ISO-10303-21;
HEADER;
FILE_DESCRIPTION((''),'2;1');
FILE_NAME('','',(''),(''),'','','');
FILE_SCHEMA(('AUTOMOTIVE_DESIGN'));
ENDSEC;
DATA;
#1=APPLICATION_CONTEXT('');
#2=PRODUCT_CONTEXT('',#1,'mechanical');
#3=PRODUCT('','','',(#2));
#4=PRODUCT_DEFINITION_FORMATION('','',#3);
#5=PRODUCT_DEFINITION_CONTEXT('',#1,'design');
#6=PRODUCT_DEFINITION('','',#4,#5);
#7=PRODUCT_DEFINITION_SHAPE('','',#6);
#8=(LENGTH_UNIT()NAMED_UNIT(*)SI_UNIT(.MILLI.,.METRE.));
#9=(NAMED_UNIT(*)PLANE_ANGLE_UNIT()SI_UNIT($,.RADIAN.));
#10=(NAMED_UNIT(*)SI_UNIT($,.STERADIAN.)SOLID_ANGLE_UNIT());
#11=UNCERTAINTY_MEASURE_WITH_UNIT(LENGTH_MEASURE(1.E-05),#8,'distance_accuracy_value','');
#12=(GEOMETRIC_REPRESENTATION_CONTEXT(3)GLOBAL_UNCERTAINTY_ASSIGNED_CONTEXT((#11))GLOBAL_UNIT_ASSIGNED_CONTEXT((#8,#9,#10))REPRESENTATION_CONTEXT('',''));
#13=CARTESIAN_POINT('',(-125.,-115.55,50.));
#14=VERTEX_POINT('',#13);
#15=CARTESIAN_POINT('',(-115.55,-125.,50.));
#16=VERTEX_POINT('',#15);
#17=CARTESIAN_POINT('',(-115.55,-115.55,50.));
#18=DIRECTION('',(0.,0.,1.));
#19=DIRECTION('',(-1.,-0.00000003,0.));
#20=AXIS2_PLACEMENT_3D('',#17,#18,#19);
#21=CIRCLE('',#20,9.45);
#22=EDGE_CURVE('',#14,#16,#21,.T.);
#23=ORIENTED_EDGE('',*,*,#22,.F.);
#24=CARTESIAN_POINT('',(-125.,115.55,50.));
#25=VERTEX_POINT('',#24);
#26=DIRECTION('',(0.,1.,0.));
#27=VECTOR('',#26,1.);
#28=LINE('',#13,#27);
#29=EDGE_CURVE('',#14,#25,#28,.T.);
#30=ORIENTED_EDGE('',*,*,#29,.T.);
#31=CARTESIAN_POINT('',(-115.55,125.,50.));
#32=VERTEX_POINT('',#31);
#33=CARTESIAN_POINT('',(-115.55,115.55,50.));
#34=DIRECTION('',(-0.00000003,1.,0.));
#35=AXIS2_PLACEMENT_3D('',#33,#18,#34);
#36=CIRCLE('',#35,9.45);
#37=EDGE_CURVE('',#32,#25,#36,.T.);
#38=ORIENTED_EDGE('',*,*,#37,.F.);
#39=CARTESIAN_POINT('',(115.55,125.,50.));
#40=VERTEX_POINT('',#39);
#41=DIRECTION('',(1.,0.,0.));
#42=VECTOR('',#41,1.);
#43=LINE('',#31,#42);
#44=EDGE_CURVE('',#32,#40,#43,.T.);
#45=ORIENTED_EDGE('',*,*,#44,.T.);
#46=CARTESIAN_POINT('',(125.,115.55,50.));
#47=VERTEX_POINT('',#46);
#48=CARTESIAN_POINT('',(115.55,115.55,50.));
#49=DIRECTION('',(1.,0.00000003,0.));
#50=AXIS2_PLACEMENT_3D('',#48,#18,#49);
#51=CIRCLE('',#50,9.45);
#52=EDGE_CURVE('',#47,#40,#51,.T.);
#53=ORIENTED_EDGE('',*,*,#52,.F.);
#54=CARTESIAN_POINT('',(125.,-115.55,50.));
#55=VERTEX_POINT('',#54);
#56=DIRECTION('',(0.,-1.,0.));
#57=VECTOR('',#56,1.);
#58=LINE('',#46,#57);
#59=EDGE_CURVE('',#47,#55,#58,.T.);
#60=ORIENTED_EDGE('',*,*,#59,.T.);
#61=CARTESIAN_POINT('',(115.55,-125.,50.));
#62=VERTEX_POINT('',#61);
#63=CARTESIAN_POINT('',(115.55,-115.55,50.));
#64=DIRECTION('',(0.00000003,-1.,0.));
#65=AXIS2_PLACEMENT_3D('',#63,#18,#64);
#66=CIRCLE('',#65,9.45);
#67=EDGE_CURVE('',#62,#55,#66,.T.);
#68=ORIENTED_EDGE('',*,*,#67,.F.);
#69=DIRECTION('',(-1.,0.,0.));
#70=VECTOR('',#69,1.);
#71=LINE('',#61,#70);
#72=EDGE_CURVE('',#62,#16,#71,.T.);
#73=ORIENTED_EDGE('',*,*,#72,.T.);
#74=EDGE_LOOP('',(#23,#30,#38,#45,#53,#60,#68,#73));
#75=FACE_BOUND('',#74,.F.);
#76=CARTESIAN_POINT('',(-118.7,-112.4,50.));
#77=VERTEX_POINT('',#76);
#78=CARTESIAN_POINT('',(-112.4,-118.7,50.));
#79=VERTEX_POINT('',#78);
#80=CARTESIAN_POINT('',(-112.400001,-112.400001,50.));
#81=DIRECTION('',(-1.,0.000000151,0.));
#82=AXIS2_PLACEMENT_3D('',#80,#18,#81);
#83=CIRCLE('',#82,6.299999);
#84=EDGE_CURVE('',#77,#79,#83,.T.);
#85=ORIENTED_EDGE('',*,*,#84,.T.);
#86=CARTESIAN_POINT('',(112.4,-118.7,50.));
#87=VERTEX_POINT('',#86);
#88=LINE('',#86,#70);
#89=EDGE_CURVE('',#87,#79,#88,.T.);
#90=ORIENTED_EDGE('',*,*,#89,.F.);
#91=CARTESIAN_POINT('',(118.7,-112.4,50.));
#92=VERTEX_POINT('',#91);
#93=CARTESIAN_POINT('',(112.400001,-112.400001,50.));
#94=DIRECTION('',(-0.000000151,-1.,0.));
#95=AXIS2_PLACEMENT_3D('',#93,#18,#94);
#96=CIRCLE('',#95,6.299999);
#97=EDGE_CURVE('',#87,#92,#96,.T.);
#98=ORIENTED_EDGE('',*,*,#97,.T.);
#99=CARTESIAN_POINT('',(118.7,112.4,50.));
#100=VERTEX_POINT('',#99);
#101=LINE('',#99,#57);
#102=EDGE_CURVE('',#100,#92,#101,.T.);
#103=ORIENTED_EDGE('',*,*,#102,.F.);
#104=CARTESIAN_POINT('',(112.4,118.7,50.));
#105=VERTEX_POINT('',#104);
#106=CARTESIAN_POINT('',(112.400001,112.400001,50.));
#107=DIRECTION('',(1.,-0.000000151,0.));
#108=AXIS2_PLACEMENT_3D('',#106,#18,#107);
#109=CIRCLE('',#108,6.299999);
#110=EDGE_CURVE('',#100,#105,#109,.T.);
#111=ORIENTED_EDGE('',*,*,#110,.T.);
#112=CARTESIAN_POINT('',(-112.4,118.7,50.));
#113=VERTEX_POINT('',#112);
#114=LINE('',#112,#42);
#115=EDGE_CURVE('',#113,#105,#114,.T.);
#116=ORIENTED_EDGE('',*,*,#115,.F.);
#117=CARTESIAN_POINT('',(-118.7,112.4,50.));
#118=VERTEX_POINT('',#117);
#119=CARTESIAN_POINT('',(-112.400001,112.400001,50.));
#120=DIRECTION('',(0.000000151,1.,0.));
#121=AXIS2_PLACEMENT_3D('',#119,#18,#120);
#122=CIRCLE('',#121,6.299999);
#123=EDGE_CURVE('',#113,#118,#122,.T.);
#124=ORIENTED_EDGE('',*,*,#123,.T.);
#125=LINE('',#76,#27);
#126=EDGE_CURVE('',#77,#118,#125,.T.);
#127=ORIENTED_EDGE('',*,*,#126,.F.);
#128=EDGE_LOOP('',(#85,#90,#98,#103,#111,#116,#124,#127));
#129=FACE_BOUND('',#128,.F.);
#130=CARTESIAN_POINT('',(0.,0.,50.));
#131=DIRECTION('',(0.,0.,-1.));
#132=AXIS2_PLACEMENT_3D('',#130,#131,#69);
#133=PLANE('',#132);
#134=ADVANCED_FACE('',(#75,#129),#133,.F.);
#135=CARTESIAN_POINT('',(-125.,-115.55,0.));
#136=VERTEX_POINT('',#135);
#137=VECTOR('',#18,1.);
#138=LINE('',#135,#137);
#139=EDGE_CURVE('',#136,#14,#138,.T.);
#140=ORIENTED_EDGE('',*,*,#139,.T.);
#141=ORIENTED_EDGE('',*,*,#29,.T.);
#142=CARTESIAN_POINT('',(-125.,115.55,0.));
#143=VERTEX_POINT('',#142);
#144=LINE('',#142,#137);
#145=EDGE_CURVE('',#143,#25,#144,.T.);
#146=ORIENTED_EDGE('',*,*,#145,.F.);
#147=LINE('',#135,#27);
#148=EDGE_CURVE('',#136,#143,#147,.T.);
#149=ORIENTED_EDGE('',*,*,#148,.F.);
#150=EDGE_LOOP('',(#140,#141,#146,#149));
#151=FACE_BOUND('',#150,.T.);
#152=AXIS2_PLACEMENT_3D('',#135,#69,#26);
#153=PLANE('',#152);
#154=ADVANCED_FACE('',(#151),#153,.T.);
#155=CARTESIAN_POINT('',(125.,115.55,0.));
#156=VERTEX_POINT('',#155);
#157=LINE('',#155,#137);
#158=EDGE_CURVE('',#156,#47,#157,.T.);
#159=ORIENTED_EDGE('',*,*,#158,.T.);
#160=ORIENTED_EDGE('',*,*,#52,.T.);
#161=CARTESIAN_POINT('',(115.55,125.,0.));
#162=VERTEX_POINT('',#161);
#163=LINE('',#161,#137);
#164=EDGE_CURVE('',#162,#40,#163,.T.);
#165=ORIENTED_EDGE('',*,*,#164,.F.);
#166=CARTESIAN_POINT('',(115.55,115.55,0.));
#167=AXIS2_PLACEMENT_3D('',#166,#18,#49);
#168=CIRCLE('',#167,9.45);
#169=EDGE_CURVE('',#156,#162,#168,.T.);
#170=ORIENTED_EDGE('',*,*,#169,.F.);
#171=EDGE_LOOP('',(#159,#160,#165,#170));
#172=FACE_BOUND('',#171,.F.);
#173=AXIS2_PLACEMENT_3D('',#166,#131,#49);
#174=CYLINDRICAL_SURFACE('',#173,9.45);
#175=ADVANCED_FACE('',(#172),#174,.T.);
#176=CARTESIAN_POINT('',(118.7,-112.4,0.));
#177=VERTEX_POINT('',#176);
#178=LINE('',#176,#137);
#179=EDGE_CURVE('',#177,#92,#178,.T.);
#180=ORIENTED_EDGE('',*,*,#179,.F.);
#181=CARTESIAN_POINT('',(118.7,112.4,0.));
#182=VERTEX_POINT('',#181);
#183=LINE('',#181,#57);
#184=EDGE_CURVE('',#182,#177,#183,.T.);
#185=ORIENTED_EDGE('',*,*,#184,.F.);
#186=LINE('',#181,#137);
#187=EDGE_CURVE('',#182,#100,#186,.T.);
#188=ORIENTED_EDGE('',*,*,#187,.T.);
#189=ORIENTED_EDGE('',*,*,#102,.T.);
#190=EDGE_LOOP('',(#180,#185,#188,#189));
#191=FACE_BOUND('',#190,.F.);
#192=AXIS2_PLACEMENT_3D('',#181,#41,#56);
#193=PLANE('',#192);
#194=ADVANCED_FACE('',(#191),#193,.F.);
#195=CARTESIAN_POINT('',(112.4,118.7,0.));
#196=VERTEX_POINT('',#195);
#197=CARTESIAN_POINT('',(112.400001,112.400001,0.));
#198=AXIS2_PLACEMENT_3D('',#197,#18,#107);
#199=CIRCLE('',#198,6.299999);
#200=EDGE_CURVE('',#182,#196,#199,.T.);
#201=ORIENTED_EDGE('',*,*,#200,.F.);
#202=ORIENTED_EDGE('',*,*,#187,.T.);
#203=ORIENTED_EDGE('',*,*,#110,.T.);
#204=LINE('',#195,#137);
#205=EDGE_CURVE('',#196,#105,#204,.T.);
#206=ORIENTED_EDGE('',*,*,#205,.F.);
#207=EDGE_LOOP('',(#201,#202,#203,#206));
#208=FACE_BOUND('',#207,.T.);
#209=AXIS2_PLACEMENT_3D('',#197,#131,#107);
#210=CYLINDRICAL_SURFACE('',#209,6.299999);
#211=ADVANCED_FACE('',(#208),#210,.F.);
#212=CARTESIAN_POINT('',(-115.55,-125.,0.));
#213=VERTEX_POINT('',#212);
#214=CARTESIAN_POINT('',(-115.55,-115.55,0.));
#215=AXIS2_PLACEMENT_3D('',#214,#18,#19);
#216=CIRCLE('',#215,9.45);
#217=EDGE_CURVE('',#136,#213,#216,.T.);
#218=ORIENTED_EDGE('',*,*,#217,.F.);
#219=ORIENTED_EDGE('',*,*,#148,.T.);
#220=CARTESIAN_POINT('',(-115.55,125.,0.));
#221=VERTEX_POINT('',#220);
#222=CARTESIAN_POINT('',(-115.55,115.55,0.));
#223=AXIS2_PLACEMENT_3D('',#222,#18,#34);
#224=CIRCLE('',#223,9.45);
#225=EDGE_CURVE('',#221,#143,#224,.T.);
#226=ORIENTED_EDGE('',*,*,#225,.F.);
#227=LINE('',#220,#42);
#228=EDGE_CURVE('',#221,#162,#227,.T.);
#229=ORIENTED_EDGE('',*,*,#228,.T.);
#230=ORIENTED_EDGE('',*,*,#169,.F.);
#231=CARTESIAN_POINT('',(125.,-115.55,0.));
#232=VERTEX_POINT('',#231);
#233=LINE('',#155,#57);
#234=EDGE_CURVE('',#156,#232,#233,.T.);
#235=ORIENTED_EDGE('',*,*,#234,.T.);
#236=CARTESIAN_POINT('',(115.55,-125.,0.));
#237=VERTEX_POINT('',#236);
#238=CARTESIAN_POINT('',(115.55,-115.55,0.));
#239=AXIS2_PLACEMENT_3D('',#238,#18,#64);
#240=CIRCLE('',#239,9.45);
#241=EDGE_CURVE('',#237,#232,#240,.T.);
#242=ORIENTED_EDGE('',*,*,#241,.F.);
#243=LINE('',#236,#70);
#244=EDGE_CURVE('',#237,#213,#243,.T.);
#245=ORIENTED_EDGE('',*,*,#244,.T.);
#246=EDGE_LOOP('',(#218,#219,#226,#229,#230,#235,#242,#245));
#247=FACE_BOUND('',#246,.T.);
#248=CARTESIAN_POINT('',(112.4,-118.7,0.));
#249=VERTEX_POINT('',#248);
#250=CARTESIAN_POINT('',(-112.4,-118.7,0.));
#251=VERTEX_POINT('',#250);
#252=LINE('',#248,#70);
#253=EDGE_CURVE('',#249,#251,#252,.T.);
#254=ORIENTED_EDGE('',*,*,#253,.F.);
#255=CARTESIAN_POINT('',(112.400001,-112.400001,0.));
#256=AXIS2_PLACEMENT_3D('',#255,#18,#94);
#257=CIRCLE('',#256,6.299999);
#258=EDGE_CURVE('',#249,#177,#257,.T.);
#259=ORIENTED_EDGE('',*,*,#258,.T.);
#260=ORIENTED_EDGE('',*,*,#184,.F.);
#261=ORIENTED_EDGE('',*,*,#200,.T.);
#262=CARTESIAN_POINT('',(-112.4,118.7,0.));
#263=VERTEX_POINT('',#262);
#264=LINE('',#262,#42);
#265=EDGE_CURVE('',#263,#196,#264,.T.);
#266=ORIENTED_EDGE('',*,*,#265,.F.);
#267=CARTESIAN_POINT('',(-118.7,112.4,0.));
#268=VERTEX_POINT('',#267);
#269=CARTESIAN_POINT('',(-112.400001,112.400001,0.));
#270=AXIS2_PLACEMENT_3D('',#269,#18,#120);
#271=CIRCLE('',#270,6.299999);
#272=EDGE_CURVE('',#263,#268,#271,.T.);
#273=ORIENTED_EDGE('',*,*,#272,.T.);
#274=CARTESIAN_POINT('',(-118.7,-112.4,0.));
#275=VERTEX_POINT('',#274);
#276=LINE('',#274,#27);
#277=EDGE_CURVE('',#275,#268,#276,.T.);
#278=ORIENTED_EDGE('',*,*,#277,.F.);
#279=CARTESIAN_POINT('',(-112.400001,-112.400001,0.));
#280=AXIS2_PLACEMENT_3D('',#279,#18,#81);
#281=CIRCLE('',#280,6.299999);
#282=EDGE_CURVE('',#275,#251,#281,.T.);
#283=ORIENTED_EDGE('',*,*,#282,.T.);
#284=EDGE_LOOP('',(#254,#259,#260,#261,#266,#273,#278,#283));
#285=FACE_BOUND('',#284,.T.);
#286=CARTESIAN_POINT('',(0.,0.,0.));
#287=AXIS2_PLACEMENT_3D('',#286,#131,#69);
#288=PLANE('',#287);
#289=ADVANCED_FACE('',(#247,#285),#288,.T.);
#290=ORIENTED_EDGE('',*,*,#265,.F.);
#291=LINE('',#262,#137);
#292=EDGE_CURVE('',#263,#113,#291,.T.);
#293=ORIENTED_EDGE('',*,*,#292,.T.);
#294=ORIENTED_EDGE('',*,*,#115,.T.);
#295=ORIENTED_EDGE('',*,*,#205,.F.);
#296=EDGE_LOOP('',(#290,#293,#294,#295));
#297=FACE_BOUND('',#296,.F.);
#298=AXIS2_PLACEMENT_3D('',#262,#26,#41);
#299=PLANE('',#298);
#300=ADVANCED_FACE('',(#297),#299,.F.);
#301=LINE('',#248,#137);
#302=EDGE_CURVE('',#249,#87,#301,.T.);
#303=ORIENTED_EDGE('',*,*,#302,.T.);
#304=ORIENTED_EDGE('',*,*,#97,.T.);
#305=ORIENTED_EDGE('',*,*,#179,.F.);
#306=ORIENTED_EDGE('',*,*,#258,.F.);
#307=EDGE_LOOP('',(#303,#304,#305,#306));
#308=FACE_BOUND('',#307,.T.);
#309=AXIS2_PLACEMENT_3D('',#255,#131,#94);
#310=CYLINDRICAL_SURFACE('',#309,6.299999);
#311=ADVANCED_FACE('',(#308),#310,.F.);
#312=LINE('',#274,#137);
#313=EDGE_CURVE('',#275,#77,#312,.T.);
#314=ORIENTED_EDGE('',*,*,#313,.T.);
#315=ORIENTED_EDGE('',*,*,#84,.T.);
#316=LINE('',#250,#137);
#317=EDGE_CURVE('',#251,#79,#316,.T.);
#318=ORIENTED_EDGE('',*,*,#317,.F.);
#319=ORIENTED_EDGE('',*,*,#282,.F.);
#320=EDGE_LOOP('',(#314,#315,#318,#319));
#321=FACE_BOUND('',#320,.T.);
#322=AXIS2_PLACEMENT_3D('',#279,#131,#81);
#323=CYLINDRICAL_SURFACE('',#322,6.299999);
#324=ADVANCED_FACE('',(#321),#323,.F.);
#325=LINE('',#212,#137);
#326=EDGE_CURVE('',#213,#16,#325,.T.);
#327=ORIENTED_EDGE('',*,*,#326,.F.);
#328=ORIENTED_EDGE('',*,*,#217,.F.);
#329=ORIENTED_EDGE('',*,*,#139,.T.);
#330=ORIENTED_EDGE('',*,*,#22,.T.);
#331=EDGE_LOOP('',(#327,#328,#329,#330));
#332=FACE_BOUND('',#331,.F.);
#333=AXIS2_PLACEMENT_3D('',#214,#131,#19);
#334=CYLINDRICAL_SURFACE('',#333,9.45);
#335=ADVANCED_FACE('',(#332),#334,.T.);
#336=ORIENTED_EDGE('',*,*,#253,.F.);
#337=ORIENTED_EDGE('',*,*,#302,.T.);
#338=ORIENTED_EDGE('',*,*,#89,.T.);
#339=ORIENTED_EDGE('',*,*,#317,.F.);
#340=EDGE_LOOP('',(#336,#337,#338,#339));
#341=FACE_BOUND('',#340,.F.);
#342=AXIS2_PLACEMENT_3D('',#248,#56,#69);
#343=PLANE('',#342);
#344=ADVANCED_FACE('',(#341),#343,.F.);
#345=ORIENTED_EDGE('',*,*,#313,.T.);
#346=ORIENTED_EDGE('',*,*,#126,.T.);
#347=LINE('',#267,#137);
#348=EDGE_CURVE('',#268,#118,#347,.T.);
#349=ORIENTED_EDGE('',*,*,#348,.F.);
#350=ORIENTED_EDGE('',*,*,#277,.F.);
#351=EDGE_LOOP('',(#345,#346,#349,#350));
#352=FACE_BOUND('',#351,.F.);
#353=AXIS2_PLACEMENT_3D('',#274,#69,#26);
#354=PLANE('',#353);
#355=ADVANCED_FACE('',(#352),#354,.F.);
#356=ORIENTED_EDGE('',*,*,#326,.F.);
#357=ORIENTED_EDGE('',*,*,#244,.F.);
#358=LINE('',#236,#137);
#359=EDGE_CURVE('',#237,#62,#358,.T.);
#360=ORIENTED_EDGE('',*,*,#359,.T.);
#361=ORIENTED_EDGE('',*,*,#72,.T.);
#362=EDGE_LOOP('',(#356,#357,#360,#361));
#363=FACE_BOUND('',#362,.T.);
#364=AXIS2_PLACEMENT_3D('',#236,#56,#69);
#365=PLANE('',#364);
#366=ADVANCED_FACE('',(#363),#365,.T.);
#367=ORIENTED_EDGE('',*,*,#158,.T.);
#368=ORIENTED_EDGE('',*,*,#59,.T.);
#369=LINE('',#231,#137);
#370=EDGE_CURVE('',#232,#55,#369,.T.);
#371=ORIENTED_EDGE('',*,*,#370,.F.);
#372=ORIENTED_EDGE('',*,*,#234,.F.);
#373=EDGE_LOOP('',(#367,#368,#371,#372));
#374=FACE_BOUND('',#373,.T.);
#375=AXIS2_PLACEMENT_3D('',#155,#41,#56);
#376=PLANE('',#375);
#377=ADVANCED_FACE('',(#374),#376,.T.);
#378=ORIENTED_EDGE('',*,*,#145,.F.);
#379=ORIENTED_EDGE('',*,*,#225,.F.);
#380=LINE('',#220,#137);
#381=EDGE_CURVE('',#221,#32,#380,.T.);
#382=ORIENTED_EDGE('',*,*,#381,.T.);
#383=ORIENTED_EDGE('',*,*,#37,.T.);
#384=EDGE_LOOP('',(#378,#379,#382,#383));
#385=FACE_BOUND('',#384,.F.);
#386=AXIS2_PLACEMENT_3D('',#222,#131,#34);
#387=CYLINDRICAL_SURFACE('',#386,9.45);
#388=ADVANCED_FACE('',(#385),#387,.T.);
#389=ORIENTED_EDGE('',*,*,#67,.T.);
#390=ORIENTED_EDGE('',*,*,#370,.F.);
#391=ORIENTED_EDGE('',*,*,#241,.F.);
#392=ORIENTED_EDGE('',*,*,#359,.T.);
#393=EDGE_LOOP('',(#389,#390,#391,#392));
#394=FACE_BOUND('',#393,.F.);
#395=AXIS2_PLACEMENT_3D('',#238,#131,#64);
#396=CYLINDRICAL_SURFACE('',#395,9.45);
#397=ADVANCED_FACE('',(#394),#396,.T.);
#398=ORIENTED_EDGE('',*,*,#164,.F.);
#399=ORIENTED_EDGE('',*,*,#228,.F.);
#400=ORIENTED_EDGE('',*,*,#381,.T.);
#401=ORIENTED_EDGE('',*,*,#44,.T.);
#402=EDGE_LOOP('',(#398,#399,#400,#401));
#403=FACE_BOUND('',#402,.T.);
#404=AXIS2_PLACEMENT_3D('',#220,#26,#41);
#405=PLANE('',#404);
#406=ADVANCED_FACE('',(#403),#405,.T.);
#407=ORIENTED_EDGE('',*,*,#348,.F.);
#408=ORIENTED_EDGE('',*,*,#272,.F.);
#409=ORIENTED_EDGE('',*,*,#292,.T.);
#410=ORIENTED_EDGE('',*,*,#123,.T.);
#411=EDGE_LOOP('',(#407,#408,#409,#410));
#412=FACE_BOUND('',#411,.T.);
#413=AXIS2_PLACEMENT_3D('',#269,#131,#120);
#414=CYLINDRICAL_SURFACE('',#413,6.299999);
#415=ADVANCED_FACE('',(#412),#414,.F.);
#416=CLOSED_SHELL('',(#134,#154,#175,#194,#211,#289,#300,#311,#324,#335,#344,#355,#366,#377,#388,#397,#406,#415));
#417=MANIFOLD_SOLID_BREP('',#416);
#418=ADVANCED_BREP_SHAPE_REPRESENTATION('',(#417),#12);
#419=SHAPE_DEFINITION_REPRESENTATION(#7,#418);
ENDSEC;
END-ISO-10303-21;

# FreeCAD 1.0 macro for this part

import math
import FreeCAD as App
import Part
import Sketcher

V = App.Vector
Q = App.Units.Quantity

doc = App.newDocument("Part")
params = doc.addObject("Spreadsheet::Sheet", "Params")
for row, (alias, value) in enumerate([
    ("sketch1_radius", "6.299999 mm"),
    ("sketch1_radius2", "9.45 mm"),
    ("sketch1_width", "231.1 mm"),
    ("sketch1_width2", "224.8 mm"),
    ("pad1_length", "50 mm"),
], start=1):
    params.set(f"A{row}", alias)
    params.set(f"B{row}", "=" + value)
    params.setAlias(f"B{row}", alias)

body = doc.addObject("PartDesign::Body", "Body")

# Sketch on XY plane
sketch1 = doc.addObject("Sketcher::SketchObject", "Sketch")
body.addObject(sketch1)
sketch1.AttachmentSupport = (doc.XY_Plane, [""])
sketch1.MapMode = "FlatFace"
sketch1.addGeometry([
    Part.LineSegment(V(116, 125, 0), V(-116, 125, 0)),  # 0
    Part.ArcOfCircle(Part.Circle(V(-116, 116, 0), V(0, 0, 1), 9), math.radians(90), math.radians(180)),  # 1
    Part.LineSegment(V(-125, 116, 0), V(-125, -116, 0)),  # 2
    Part.ArcOfCircle(Part.Circle(V(-116, -116, 0), V(0, 0, 1), 9), math.radians(-180), math.radians(-90)),  # 3
    Part.LineSegment(V(-116, -125, 0), V(116, -125, 0)),  # 4
    Part.ArcOfCircle(Part.Circle(V(116, -116, 0), V(0, 0, 1), 9), math.radians(-90), math.radians(0)),  # 5
    Part.LineSegment(V(125, -116, 0), V(125, 116, 0)),  # 6
    Part.ArcOfCircle(Part.Circle(V(116, 116, 0), V(0, 0, 1), 9), math.radians(0), math.radians(90)),  # 7
    Part.LineSegment(V(-112, 119, 0), V(112, 119, 0)),  # 8
    Part.ArcOfCircle(Part.Circle(V(112, 112, 0), V(0, 0, 1), 6), math.radians(0), math.radians(90)),  # 9
    Part.LineSegment(V(119, 112, 0), V(119, -112, 0)),  # 10
    Part.ArcOfCircle(Part.Circle(V(112, -112, 0), V(0, 0, 1), 6), math.radians(-90), math.radians(0)),  # 11
    Part.LineSegment(V(112, -119, 0), V(-112, -119, 0)),  # 12
    Part.ArcOfCircle(Part.Circle(V(-112, -112, 0), V(0, 0, 1), 6), math.radians(180), math.radians(270)),  # 13
    Part.LineSegment(V(-119, -112, 0), V(-119, 112, 0)),  # 14
    Part.ArcOfCircle(Part.Circle(V(-112, 112, 0), V(0, 0, 1), 6), math.radians(90), math.radians(180)),  # 15
], False)
sketch1.addConstraint([
    Sketcher.Constraint("Tangent", 0, 2, 1, 1),
    Sketcher.Constraint("Tangent", 1, 2, 2, 1),
    Sketcher.Constraint("Tangent", 2, 2, 3, 1),
    Sketcher.Constraint("Tangent", 3, 2, 4, 1),
    Sketcher.Constraint("Tangent", 4, 2, 5, 1),
    Sketcher.Constraint("Tangent", 5, 2, 6, 1),
    Sketcher.Constraint("Tangent", 6, 2, 7, 1),
    Sketcher.Constraint("Tangent", 7, 2, 0, 1),
    Sketcher.Constraint("Tangent", 8, 2, 9, 2),
    Sketcher.Constraint("Tangent", 9, 1, 10, 1),
    Sketcher.Constraint("Tangent", 10, 2, 11, 2),
    Sketcher.Constraint("Tangent", 11, 1, 12, 1),
    Sketcher.Constraint("Tangent", 12, 2, 13, 2),
    Sketcher.Constraint("Tangent", 13, 1, 14, 1),
    Sketcher.Constraint("Tangent", 14, 2, 15, 2),
    Sketcher.Constraint("Tangent", 15, 1, 8, 1),
    Sketcher.Constraint("Horizontal", 0),
    Sketcher.Constraint("Vertical", 2),
    Sketcher.Constraint("Horizontal", 4),
    Sketcher.Constraint("Vertical", 6),
    Sketcher.Constraint("Horizontal", 8),
    Sketcher.Constraint("Vertical", 10),
    Sketcher.Constraint("Horizontal", 12),
    Sketcher.Constraint("Vertical", 14),
    Sketcher.Constraint("Equal", 1, 3),
    Sketcher.Constraint("Equal", 3, 5),
    Sketcher.Constraint("Equal", 5, 7),
    Sketcher.Constraint("Equal", 9, 11),
    Sketcher.Constraint("Equal", 11, 13),
    Sketcher.Constraint("Equal", 13, 15),
    Sketcher.Constraint("Symmetric", 1, 3, 5, 3, -1, 1),
    Sketcher.Constraint("Symmetric", 9, 3, 13, 3, -1, 1),
    Sketcher.Constraint("Equal", 4, 2),
    Sketcher.Constraint("Equal", 12, 10),
    Sketcher.Constraint("Radius", 9, Q("6.299999 mm")),
    Sketcher.Constraint("Radius", 1, Q("9.45 mm")),
    Sketcher.Constraint("DistanceX", 0, 2, 0, 1, Q("231.1 mm")),
    Sketcher.Constraint("DistanceX", 8, 1, 8, 2, Q("224.8 mm")),
])
sketch1.setExpression("Constraints[34]", "Params.sketch1_radius")
sketch1.setExpression("Constraints[35]", "Params.sketch1_radius2")
sketch1.setExpression("Constraints[36]", "Params.sketch1_width")
sketch1.setExpression("Constraints[37]", "Params.sketch1_width2")
pad1 = doc.addObject("PartDesign::Pad", "Pad")
body.addObject(pad1)
pad1.Profile = sketch1
pad1.setExpression("Length", "Params.pad1_length")

doc.recompute()
